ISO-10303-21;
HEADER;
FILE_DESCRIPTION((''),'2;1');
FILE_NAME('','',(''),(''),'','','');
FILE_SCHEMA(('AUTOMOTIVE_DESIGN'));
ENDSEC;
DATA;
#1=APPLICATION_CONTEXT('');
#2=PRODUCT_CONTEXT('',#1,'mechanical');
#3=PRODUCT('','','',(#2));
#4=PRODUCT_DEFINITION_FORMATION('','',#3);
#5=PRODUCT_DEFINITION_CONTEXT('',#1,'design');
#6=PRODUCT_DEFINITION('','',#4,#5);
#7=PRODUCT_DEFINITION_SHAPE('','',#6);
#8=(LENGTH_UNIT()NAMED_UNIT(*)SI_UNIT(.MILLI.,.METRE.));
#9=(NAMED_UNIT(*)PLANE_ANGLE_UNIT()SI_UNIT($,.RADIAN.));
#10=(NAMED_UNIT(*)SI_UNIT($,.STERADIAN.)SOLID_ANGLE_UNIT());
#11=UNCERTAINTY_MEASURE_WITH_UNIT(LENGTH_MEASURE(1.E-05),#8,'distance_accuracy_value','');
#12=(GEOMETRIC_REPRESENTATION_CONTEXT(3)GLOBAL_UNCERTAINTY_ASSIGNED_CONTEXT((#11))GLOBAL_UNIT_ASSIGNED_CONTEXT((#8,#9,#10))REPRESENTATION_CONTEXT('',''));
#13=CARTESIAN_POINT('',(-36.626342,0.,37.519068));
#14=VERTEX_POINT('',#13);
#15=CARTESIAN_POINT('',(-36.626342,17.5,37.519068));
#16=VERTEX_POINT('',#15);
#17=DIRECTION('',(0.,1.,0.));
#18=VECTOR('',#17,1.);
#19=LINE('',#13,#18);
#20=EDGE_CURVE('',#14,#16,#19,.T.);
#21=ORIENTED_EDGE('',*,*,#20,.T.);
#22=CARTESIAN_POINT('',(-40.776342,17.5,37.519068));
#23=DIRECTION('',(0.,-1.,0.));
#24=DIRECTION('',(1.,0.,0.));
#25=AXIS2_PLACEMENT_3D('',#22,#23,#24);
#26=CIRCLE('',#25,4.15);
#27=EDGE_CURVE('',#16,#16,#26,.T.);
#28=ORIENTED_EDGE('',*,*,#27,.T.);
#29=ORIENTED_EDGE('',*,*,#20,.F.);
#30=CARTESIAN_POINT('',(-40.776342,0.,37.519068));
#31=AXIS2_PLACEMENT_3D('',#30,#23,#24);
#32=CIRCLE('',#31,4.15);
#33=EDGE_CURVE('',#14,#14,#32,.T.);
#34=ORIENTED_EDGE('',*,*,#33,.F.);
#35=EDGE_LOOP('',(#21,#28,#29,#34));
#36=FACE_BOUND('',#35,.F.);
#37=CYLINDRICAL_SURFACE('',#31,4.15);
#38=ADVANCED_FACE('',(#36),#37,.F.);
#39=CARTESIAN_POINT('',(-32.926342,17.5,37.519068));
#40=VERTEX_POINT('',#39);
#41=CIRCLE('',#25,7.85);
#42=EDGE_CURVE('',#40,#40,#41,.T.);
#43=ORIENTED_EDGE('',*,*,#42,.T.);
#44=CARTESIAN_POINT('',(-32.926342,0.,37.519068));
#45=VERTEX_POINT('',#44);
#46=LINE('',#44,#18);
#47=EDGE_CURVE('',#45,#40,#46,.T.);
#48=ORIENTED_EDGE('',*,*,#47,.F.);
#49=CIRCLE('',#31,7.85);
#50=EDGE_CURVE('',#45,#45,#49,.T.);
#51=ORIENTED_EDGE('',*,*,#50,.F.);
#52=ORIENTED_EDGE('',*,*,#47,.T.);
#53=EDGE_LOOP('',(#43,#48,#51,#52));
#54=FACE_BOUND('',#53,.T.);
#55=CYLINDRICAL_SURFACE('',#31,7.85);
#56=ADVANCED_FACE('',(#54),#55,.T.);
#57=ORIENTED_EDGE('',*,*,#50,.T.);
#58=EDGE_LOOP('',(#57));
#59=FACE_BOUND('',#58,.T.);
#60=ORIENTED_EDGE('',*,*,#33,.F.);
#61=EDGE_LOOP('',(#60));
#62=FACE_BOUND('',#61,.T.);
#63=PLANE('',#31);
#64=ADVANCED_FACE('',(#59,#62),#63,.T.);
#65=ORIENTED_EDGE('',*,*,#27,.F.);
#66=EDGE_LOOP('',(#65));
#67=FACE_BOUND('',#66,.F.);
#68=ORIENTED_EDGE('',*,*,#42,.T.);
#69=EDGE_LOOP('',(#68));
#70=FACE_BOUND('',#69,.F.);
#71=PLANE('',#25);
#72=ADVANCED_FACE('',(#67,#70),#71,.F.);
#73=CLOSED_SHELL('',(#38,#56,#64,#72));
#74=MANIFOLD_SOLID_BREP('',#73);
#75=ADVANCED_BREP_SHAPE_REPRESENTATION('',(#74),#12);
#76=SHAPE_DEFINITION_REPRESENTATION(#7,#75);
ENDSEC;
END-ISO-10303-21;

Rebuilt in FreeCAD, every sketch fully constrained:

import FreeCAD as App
import Part
import Sketcher

V = App.Vector

doc = App.newDocument("Part")
body = doc.addObject("PartDesign::Body", "Body")

# Sketch on XZ plane
sketch1 = body.newObject("Sketcher::SketchObject", "Sketch")
sketch1.AttachmentSupport = (doc.getObject("XZ_Plane"), [""])
sketch1.MapMode = "FlatFace"
sketch1.addGeometry(Part.Circle(V(-40.776342, 37.519068, 0), V(0, 0, 1), 7.85), False)
sketch1.addGeometry(Part.Circle(V(-40.776342, 37.519068, 0), V(0, 0, 1), 4.15), False)
sketch1.addConstraint(Sketcher.Constraint("Coincident", 1, 3, 0, 3))
sketch1.addConstraint(Sketcher.Constraint("Diameter", 0, 15.7))
sketch1.addConstraint(Sketcher.Constraint("Diameter", 1, 8.3))
sketch1.addConstraint(Sketcher.Constraint("DistanceX", 0, 3, -1, 1, 40.776342))
sketch1.addConstraint(Sketcher.Constraint("DistanceY", -1, 1, 0, 3, 37.519068))
pad1 = body.newObject("PartDesign::Pad", "Pad")
pad1.Profile = sketch1
pad1.Length = 17.5
pad1.Reversed = True

doc.recompute()
